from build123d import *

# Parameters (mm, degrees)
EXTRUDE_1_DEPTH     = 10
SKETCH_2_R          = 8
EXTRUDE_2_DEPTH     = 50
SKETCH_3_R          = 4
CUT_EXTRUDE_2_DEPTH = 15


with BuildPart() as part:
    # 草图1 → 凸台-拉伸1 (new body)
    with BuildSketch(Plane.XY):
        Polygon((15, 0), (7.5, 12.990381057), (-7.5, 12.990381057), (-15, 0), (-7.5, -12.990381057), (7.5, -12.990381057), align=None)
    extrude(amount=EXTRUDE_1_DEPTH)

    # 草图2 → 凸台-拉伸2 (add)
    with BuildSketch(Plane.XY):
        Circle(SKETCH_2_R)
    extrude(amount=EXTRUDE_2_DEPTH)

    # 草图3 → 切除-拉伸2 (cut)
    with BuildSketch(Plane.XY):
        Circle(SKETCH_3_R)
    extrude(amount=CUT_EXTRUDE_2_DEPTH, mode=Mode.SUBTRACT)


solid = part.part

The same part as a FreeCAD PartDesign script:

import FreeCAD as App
import Part
import Sketcher

V = App.Vector
Q = App.Units.Quantity

doc = App.newDocument("Part")
body = doc.addObject("PartDesign::Body", "Body")

sketch1 = body.newObject("Sketcher::SketchObject", "Sketch")
sketch1.AttachmentSupport = (doc.getObject("XY_Plane"), [""])
sketch1.MapMode = "FlatFace"
sketch1.addGeometry([
    Part.LineSegment(V(15, 0, 0), V(7.5, 12.990381, 0)),
    Part.LineSegment(V(7.5, 12.990381, 0), V(-7.5, 12.990381, 0)),
    Part.LineSegment(V(-7.5, 12.990381, 0), V(-15, 0, 0)),
    Part.LineSegment(V(-15, 0, 0), V(-7.5, -12.990381, 0)),
    Part.LineSegment(V(-7.5, -12.990381, 0), V(7.5, -12.990381, 0)),
    Part.LineSegment(V(7.5, -12.990381, 0), V(15, 0, 0)),
], False)
sketch1.addConstraint([
    Sketcher.Constraint("Coincident", 0, 2, 1, 1),
    Sketcher.Constraint("Coincident", 1, 2, 2, 1),
    Sketcher.Constraint("Coincident", 2, 2, 3, 1),
    Sketcher.Constraint("Coincident", 3, 2, 4, 1),
    Sketcher.Constraint("Coincident", 4, 2, 5, 1),
    Sketcher.Constraint("Coincident", 5, 2, 0, 1),
    Sketcher.Constraint("Horizontal", 1),
    Sketcher.Constraint("Horizontal", 4),
    Sketcher.Constraint("Symmetric", 0, 2, 3, 2, -1, 1),
    Sketcher.Constraint("Symmetric", 2, 2, 5, 2, -1, 1),
    Sketcher.Constraint("PointOnObject", 2, 2, -1),
    Sketcher.Constraint("Parallel", 2, 5),
    Sketcher.Constraint("Vertical", 1, 2, 3, 2),
    Sketcher.Constraint("DistanceX", 1, 2, 1, 1, Q("15 mm")),
    Sketcher.Constraint("Angle", 0, Q("120 deg")),
    Sketcher.Constraint("Distance", 0, Q("15 mm")),
])
pad1 = body.newObject("PartDesign::Pad", "Pad")
pad1.Profile = sketch1
pad1.Length = 10

sketch2 = body.newObject("Sketcher::SketchObject", "Sketch001")
sketch2.AttachmentSupport = (doc.getObject("XY_Plane"), [""])
sketch2.MapMode = "FlatFace"
sketch2.addGeometry(Part.Circle(V(0, 0, 0), V(0, 0, 1), 8), False)
sketch2.addConstraint([
    Sketcher.Constraint("Coincident", 0, 3, -1, 1),
    Sketcher.Constraint("Diameter", 0, Q("16 mm")),
])
pad2 = body.newObject("PartDesign::Pad", "Pad001")
pad2.Profile = sketch2
pad2.Length = 50

sketch3 = body.newObject("Sketcher::SketchObject", "Sketch002")
sketch3.AttachmentSupport = (doc.getObject("XY_Plane"), [""])
sketch3.MapMode = "FlatFace"
sketch3.addGeometry(Part.Circle(V(0, 0, 0), V(0, 0, 1), 4), False)
sketch3.addConstraint([
    Sketcher.Constraint("Coincident", 0, 3, -1, 1),
    Sketcher.Constraint("Diameter", 0, Q("8 mm")),
])
pocket1 = body.newObject("PartDesign::Pocket", "Pocket")
pocket1.Profile = sketch3
pocket1.Length = 15
pocket1.Reversed = True

doc.recompute()
